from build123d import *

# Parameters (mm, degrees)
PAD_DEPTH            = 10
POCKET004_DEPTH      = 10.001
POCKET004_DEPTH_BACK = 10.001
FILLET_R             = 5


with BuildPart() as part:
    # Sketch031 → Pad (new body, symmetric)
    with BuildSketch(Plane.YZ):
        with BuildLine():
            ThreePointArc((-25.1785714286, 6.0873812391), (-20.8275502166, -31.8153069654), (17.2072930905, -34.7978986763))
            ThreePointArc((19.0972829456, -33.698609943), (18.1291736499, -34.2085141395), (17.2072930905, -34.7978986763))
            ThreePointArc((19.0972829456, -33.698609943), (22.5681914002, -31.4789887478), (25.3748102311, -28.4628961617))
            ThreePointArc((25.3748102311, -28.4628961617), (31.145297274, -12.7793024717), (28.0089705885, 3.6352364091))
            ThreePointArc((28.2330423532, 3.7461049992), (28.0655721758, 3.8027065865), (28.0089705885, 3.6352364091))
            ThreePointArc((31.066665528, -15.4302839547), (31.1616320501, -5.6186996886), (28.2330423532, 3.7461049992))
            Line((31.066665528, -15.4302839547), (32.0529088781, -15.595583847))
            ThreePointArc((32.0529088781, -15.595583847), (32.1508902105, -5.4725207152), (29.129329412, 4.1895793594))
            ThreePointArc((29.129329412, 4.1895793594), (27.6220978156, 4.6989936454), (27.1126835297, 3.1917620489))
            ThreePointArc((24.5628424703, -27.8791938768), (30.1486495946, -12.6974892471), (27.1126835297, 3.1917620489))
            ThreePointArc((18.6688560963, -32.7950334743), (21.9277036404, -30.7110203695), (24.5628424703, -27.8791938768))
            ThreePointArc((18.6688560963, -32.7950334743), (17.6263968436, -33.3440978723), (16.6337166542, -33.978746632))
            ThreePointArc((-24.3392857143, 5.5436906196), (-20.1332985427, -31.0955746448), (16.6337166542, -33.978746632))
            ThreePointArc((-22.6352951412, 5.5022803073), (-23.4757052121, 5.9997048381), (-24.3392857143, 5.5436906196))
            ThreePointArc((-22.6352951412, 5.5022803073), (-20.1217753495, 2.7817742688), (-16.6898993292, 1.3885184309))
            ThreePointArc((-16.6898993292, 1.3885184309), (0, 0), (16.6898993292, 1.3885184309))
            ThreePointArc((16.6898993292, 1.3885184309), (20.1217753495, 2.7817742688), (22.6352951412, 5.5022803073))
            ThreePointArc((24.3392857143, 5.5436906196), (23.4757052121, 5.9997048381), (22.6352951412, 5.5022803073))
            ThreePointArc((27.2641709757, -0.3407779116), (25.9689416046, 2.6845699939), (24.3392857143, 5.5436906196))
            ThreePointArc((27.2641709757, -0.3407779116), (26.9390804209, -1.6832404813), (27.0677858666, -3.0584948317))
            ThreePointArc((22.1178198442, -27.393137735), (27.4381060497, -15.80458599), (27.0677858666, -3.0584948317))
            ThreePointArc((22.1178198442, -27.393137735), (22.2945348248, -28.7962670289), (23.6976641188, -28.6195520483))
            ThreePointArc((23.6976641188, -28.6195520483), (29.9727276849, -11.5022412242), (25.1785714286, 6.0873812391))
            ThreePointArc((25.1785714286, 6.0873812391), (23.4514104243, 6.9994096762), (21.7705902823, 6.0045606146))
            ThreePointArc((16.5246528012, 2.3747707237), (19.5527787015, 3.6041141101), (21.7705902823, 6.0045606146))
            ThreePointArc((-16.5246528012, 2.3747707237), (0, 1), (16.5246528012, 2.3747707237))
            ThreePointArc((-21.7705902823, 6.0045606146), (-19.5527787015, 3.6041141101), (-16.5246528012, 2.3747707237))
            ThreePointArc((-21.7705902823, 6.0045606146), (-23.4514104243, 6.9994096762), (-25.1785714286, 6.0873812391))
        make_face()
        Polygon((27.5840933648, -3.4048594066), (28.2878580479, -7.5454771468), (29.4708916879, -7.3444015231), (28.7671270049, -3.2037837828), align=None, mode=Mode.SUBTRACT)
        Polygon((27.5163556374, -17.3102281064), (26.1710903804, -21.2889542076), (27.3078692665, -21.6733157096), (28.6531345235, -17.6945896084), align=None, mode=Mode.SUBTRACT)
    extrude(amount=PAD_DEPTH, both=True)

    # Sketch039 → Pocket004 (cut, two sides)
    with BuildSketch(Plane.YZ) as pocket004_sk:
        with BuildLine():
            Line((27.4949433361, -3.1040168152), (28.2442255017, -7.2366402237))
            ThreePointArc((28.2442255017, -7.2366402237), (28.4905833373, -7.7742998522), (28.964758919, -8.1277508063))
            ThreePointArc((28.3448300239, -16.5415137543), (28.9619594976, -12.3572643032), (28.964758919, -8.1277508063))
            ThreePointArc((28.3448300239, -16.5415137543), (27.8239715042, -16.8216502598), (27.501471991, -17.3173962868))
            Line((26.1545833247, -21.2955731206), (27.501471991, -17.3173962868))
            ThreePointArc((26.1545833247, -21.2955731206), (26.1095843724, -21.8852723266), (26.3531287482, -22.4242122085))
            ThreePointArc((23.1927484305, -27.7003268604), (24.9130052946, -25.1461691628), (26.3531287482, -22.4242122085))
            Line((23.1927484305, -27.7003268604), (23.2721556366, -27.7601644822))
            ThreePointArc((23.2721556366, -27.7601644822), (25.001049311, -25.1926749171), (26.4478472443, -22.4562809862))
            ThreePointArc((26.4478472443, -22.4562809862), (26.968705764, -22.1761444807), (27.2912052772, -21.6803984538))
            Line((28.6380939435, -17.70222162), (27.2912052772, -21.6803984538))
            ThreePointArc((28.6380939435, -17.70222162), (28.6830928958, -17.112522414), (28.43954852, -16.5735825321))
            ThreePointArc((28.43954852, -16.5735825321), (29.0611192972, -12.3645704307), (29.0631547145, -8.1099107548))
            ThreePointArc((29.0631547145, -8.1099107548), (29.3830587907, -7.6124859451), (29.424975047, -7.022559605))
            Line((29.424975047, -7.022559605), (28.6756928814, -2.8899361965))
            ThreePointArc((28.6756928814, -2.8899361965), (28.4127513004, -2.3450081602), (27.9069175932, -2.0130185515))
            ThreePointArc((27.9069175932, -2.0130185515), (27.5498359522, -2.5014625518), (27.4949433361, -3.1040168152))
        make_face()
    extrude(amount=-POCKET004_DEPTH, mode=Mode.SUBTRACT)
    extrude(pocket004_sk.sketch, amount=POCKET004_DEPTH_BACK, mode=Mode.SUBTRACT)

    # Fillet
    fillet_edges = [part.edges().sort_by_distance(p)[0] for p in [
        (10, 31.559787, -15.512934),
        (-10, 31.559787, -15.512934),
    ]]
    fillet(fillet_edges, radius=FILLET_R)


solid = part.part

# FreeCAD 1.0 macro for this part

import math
import FreeCAD as App
import Part
import Sketcher
Q = App.Units.Quantity


def edges_at(feature, points):
    """Names of the edges that pass closest to the given points."""
    edges = feature.Shape.Edges
    near = lambda p: min(range(len(edges)), key=lambda i: edges[i].distToShape(Part.Vertex(*p))[0])
    return sorted({f"Edge{near(p) + 1}" for p in points})


def add_polygon(sketch, points):
    """Adds a closed chain of lines whose ends are joined by coincident constraints."""
    first, n = sketch.GeometryCount, len(points)
    for a, b in zip(points, points[1:] + points[:1]):
        sketch.addGeometry(Part.LineSegment(App.Vector(*a, 0), App.Vector(*b, 0)), False)
    for i in range(n):
        sketch.addConstraint(Sketcher.Constraint("Coincident", first + i, 2, first + (i + 1) % n, 1))

doc = App.newDocument("Part")
body = doc.addObject("PartDesign::Body", "Body")

# Sketch on YZ plane
sketch1 = body.newObject("Sketcher::SketchObject", "Sketch")
sketch1.AttachmentSupport = (doc.getObject("YZ_Plane"), [""])
sketch1.MapMode = "FlatFace"
sketch1.addGeometry(Part.ArcOfCircle(Part.Circle(App.Vector(0, -10.223337, 0), App.Vector(0, 0, 1), 30), math.radians(147.06477), math.radians(305)), False)  # 0
sketch1.addGeometry(Part.ArcOfCircle(Part.Circle(App.Vector(24.67582, -45.464061, 0), App.Vector(0, 0, 1), 13.02098), math.radians(115.367765), math.radians(125)), False)  # 1
sketch1.addGeometry(Part.ArcOfCircle(Part.Circle(App.Vector(12.085573, -18.910516, 0), App.Vector(0, 0, 1), 16.366179), math.radians(-64.632235), math.radians(-35.708797)), False)  # 2
sketch1.addGeometry(Part.ArcOfCircle(Part.Circle(App.Vector(0, -10.223337, 0), App.Vector(0, 0, 1), 31.25), math.radians(-35.708797), math.radians(26.32577)), False)  # 3
sketch1.addGeometry(Part.ArcOfCircle(Part.Circle(App.Vector(28.121006, 3.690671, 0), App.Vector(0, 0, 1), 0.125), math.radians(26.32577), math.radians(206.32577)), False)  # 4
sketch1.addGeometry(Part.ArcOfCircle(Part.Circle(App.Vector(0, -10.223337, 0), App.Vector(0, 0, 1), 31.5), math.radians(-9.514656), math.radians(26.32577)), False)  # 5
sketch1.addGeometry(Part.LineSegment(App.Vector(31.066666, -15.430284, 0), App.Vector(32.052909, -15.595584, 0)), False)  # 6
sketch1.addGeometry(Part.ArcOfCircle(Part.Circle(App.Vector(0, -10.223337, 0), App.Vector(0, 0, 1), 32.5), math.radians(-9.514656), math.radians(26.32577)), False)  # 7
sketch1.addGeometry(Part.ArcOfCircle(Part.Circle(App.Vector(28.121006, 3.690671, 0), App.Vector(0, 0, 1), 1.125), math.radians(26.32577), math.radians(206.32577)), False)  # 8
sketch1.addGeometry(Part.ArcOfCircle(Part.Circle(App.Vector(0, -10.223337, 0), App.Vector(0, 0, 1), 30.25), math.radians(-35.708712), math.radians(26.32577)), False)  # 9
sketch1.addGeometry(Part.ArcOfCircle(Part.Circle(App.Vector(12.085573, -18.910516, 0), App.Vector(0, 0, 1), 15.366179), math.radians(-64.632235), math.radians(-35.708629)), False)  # 10
sketch1.addGeometry(Part.ArcOfCircle(Part.Circle(App.Vector(24.67582, -45.464061, 0), App.Vector(0, 0, 1), 14.02098), math.radians(115.367765), math.radians(125)), False)  # 11
sketch1.addGeometry(Part.ArcOfCircle(Part.Circle(App.Vector(0, -10.223337, 0), App.Vector(0, 0, 1), 29), math.radians(147.06477), math.radians(305)), False)  # 12
sketch1.addGeometry(Part.ArcOfCircle(Part.Circle(App.Vector(-23.5, 5, 0), App.Vector(0, 0, 1), 1), math.radians(30.150979), math.radians(147.064769)), False)  # 13
sketch1.addGeometry(Part.ArcOfCircle(Part.Circle(App.Vector(-15.285304, 9.771663, 0), App.Vector(0, 0, 1), 8.5), math.radians(-149.849021), math.radians(-99.511556)), False)  # 14
sketch1.addGeometry(Part.ArcOfCircle(Part.Circle(App.Vector(0, 101, 0), App.Vector(0, 0, 1), 101), math.radians(-99.511556), math.radians(-80.488444)), False)  # 15
sketch1.addGeometry(Part.ArcOfCircle(Part.Circle(App.Vector(15.285304, 9.771663, 0), App.Vector(0, 0, 1), 8.5), math.radians(-80.488444), math.radians(-30.150979)), False)  # 16
sketch1.addGeometry(Part.ArcOfCircle(Part.Circle(App.Vector(23.5, 5, 0), App.Vector(0, 0, 1), 1), math.radians(32.935231), math.radians(149.849021)), False)  # 17
sketch1.addGeometry(Part.ArcOfCircle(Part.Circle(App.Vector(0, -10.223337, 0), App.Vector(0, 0, 1), 29), math.radians(19.924276), math.radians(32.93523)), False)  # 18
sketch1.addGeometry(Part.ArcOfCircle(Part.Circle(App.Vector(31.12153, -1.985469, 0), App.Vector(0, 0, 1), 4.193355), math.radians(156.907696), math.radians(194.826164)), False)  # 19
sketch1.addGeometry(Part.ArcOfCircle(Part.Circle(App.Vector(0, -10.223337, 0), App.Vector(0, 0, 1), 28), math.radians(-37.821764), math.radians(14.826164)), False)  # 20
sketch1.addGeometry(Part.ArcOfCircle(Part.Circle(App.Vector(22.907742, -28.006345, 0), App.Vector(0, 0, 1), 1), math.radians(142.178236), math.radians(322.178236)), False)  # 21
sketch1.addGeometry(Part.ArcOfCircle(Part.Circle(App.Vector(0, -10.223337, 0), App.Vector(0, 0, 1), 30), math.radians(-37.821764), math.radians(32.93523)), False)  # 22
sketch1.addGeometry(Part.ArcOfCircle(Part.Circle(App.Vector(23.5, 5, 0), App.Vector(0, 0, 1), 2), math.radians(32.93523), math.radians(149.849021)), False)  # 23
sketch1.addGeometry(Part.ArcOfCircle(Part.Circle(App.Vector(15.285304, 9.771663, 0), App.Vector(0, 0, 1), 7.5), math.radians(-80.488444), math.radians(-30.150979)), False)  # 24
sketch1.addGeometry(Part.ArcOfCircle(Part.Circle(App.Vector(0, 101, 0), App.Vector(0, 0, 1), 100), math.radians(-99.511556), math.radians(-80.488444)), False)  # 25
sketch1.addGeometry(Part.ArcOfCircle(Part.Circle(App.Vector(-15.285304, 9.771663, 0), App.Vector(0, 0, 1), 7.5), math.radians(-149.849021), math.radians(-99.511556)), False)  # 26
sketch1.addGeometry(Part.ArcOfCircle(Part.Circle(App.Vector(-23.5, 5, 0), App.Vector(0, 0, 1), 2), math.radians(30.150979), math.radians(147.06477)), False)  # 27
add_polygon(sketch1, [(26.17109, -21.288954), (27.516356, -17.310228), (28.653135, -17.69459), (27.307869, -21.673316)])  # lines 28-31
add_polygon(sketch1, [(28.287858, -7.545477), (27.584093, -3.404859), (28.767127, -3.203784), (29.470892, -7.344402)])  # lines 32-35
sketch1.addConstraint([
    Sketcher.Constraint("Coincident", 0, 2, 1, 2),
    Sketcher.Constraint("Coincident", 1, 1, 2, 1),
    Sketcher.Constraint("Coincident", 2, 2, 3, 1),
    Sketcher.Constraint("Coincident", 3, 2, 4, 2),
    Sketcher.Constraint("Coincident", 4, 1, 5, 2),
    Sketcher.Constraint("Coincident", 5, 1, 6, 1),
    Sketcher.Constraint("Coincident", 6, 2, 7, 1),
    Sketcher.Constraint("Coincident", 7, 2, 8, 1),
    Sketcher.Constraint("Coincident", 8, 2, 9, 2),
    Sketcher.Constraint("Coincident", 9, 1, 10, 2),
    Sketcher.Constraint("Coincident", 10, 1, 11, 1),
    Sketcher.Constraint("Coincident", 11, 2, 12, 2),
    Sketcher.Constraint("Coincident", 12, 1, 13, 2),
    Sketcher.Constraint("Coincident", 13, 1, 14, 1),
    Sketcher.Constraint("Coincident", 14, 2, 15, 1),
    Sketcher.Constraint("Coincident", 15, 2, 16, 1),
    Sketcher.Constraint("Coincident", 16, 2, 17, 2),
    Sketcher.Constraint("Coincident", 17, 1, 18, 2),
    Sketcher.Constraint("Coincident", 18, 1, 19, 1),
    Sketcher.Constraint("Coincident", 19, 2, 20, 2),
    Sketcher.Constraint("Coincident", 20, 1, 21, 1),
    Sketcher.Constraint("Coincident", 21, 2, 22, 1),
    Sketcher.Constraint("Coincident", 22, 2, 23, 1),
    Sketcher.Constraint("Coincident", 23, 2, 24, 2),
    Sketcher.Constraint("Coincident", 24, 1, 25, 2),
    Sketcher.Constraint("Coincident", 25, 1, 26, 2),
    Sketcher.Constraint("Coincident", 26, 1, 27, 1),
    Sketcher.Constraint("Coincident", 27, 2, 0, 1),
    Sketcher.Constraint("Coincident", 3, 3, 0, 3),
    Sketcher.Constraint("Coincident", 5, 3, 0, 3),
    Sketcher.Constraint("Coincident", 7, 3, 0, 3),
    Sketcher.Constraint("Coincident", 8, 3, 4, 3),
    Sketcher.Constraint("Coincident", 9, 3, 0, 3),
    Sketcher.Constraint("Coincident", 10, 3, 2, 3),
    Sketcher.Constraint("Coincident", 11, 3, 1, 3),
    Sketcher.Constraint("Coincident", 12, 3, 0, 3),
    Sketcher.Constraint("Coincident", 18, 3, 0, 3),
    Sketcher.Constraint("Coincident", 20, 3, 0, 3),
    Sketcher.Constraint("Coincident", 22, 3, 0, 3),
    Sketcher.Constraint("Coincident", 23, 3, 17, 3),
    Sketcher.Constraint("Coincident", 24, 3, 16, 3),
    Sketcher.Constraint("Coincident", 25, 3, 15, 3),
    Sketcher.Constraint("Coincident", 26, 3, 14, 3),
    Sketcher.Constraint("Coincident", 27, 3, 13, 3),
    Sketcher.Constraint("PointOnObject", 0, 3, -2),
    Sketcher.Constraint("PointOnObject", 15, 3, -2),
    Sketcher.Constraint("Radius", 0, 30.0),
    Sketcher.Constraint("Radius", 12, 29.0),
    Sketcher.Constraint("Radius", 13, 1.0),
    Sketcher.Constraint("Radius", 15, 101.0),
    Sketcher.Constraint("Radius", 17, 1.0),
    Sketcher.Constraint("Radius", 18, 29.0),
    Sketcher.Constraint("Radius", 20, 28.0),
    Sketcher.Constraint("Radius", 5, 31.5),
    Sketcher.Constraint("Radius", 14, 8.5),
    Sketcher.Constraint("Radius", 16, 8.5),
    Sketcher.Constraint("Radius", 3, 31.25),
    Sketcher.Constraint("DistanceY", -1, 1, 13, 3, 5.0),
    Sketcher.Constraint("DistanceY", -1, 1, 15, 3, 101.0),
    Sketcher.Constraint("DistanceY", -1, 1, 17, 3, 5.0),
    Sketcher.Constraint("Distance", 28, 4.2),
    Sketcher.Constraint("Distance", 29, 1.2),
    Sketcher.Constraint("Distance", 30, 4.2),
    Sketcher.Constraint("Distance", 31, 1.2),
    Sketcher.Constraint("Distance", 32, 4.2),
    Sketcher.Constraint("Distance", 33, 1.2),
    Sketcher.Constraint("Distance", 34, 4.2),
    Sketcher.Constraint("Distance", 35, 1.2),
    Sketcher.Constraint("DistanceX", 13, 3, -1, 1, 23.5),
    Sketcher.Constraint("Radius", 1, 13.02098),
    Sketcher.Constraint("Radius", 2, 16.366179),
    Sketcher.Constraint("Radius", 19, 4.193355),
    Sketcher.Constraint("DistanceY", 0, 2, -1, 1, 34.797899),
    Sketcher.Constraint("DistanceX", 14, 2, -1, 1, 16.689899),
    Sketcher.Constraint("DistanceX", -1, 1, 15, 2, 16.689899),
    Sketcher.Constraint("DistanceY", 34, 2, -1, 1, 7.344402),
    Sketcher.Constraint("DistanceX", -1, 1, 1, 3, 24.67582),
    Sketcher.Constraint("DistanceY", -1, 1, 4, 3, 3.690671),
    Sketcher.Constraint("DistanceX", -1, 1, 19, 3, 31.12153),
    Sketcher.Constraint("DistanceX", -1, 1, 21, 3, 22.907742),
    Sketcher.Constraint("DistanceY", 1, 1, -1, 1, 33.69861),
    Sketcher.Constraint("DistanceX", -1, 1, 2, 2, 25.37481),
    Sketcher.Constraint("DistanceX", -1, 1, 3, 2, 28.008971),
    Sketcher.Constraint("DistanceX", -1, 1, 6, 2, 32.052909),
    Sketcher.Constraint("DistanceX", -1, 1, 7, 2, 29.129329),
    Sketcher.Constraint("DistanceY", -1, 1, 12, 1, 5.543691),
    Sketcher.Constraint("DistanceY", -1, 1, 13, 1, 5.50228),
    Sketcher.Constraint("DistanceY", -1, 1, 16, 2, 5.50228),
    Sketcher.Constraint("DistanceY", -1, 1, 17, 1, 5.543691),
    Sketcher.Constraint("DistanceX", -1, 1, 20, 1, 22.11782),
    Sketcher.Constraint("DistanceX", -1, 1, 22, 2, 25.178571),
    Sketcher.Constraint("DistanceX", -1, 1, 23, 2, 21.77059),
    Sketcher.Constraint("DistanceY", -1, 1, 24, 1, 2.374771),
    Sketcher.Constraint("DistanceY", -1, 1, 25, 1, 2.374771),
    Sketcher.Constraint("DistanceX", 26, 1, -1, 1, 21.77059),
    Sketcher.Constraint("DistanceX", 27, 2, -1, 1, 25.178571),
    Sketcher.Constraint("DistanceY", 28, 2, -1, 1, 17.310228),
    Sketcher.Constraint("DistanceY", 29, 2, -1, 1, 17.69459),
    Sketcher.Constraint("DistanceX", -1, 1, 30, 2, 27.307869),
    Sketcher.Constraint("DistanceY", 32, 2, -1, 1, 3.404859),
    Sketcher.Constraint("DistanceX", -1, 1, 34, 2, 29.470892),
    Sketcher.Constraint("DistanceX", -1, 1, 35, 2, 28.287858),
    Sketcher.Constraint("DistanceX", -1, 1, 4, 1, 28.233042),
    Sketcher.Constraint("DistanceX", -1, 1, 5, 1, 31.066666),
    Sketcher.Constraint("DistanceX", -1, 1, 8, 2, 27.112684),
    Sketcher.Constraint("DistanceX", -1, 1, 9, 1, 24.562842),
    Sketcher.Constraint("DistanceX", -1, 1, 10, 1, 18.668856),
    Sketcher.Constraint("DistanceX", -1, 1, 11, 2, 16.633717),
    Sketcher.Constraint("DistanceX", -1, 1, 19, 2, 27.067786),
    Sketcher.Constraint("DistanceX", -1, 1, 21, 2, 23.697664),
    Sketcher.Constraint("DistanceX", -1, 1, 28, 2, 27.516356),
])
pad1 = body.newObject("PartDesign::Pad", "Pad")
pad1.Profile = sketch1
pad1.Length = 20
pad1.Midplane = True

# Sketch on YZ plane
sketch2 = body.newObject("Sketcher::SketchObject", "Sketch001")
sketch2.AttachmentSupport = (doc.getObject("YZ_Plane"), [""])
sketch2.MapMode = "FlatFace"
sketch2.addGeometry([
    Part.LineSegment(App.Vector(27.49, -3.1, 0), App.Vector(28.24, -7.24, 0)),  # 0
    Part.ArcOfCircle(Part.Circle(App.Vector(29.42, -7.02, 0), App.Vector(0, 0, 1), 1.19), math.radians(-170), math.radians(-112)),  # 1
    Part.ArcOfCircle(Part.Circle(App.Vector(0, -10.22, 0), App.Vector(0, 0, 1), 29.04), math.radians(-12.57), math.radians(4.14)),  # 2
    Part.ArcOfCircle(Part.Circle(App.Vector(28.63, -17.7, 0), App.Vector(0, 0, 1), 1.19), math.radians(104), math.radians(161)),  # 3
    Part.LineSegment(App.Vector(27.5, -17.32, 0), App.Vector(26.15, -21.3, 0)),  # 4
    Part.ArcOfCircle(Part.Circle(App.Vector(27.29, -21.68, 0), App.Vector(0, 0, 1), 1.19), math.radians(161), math.radians(219)),  # 5
    Part.ArcOfCircle(Part.Circle(App.Vector(0, -10.22, 0), App.Vector(0, 0, 1), 29.04), math.radians(-37), math.radians(-24.84)),  # 6
    Part.LineSegment(App.Vector(23.19, -27.7, 0), App.Vector(23.27, -27.76, 0)),  # 7
    Part.ArcOfCircle(Part.Circle(App.Vector(0, -10.22, 0), App.Vector(0, 0, 1), 29.14), math.radians(-37), math.radians(-24.82)),  # 8
    Part.ArcOfCircle(Part.Circle(App.Vector(26.16, -21.3, 0), App.Vector(0, 0, 1), 1.19), math.radians(-76), math.radians(-19)),  # 9
    Part.LineSegment(App.Vector(27.29, -21.68, 0), App.Vector(28.64, -17.7, 0)),  # 10
    Part.ArcOfCircle(Part.Circle(App.Vector(27.51, -17.32, 0), App.Vector(0, 0, 1), 1.19), math.radians(-19), math.radians(39)),  # 11
    Part.ArcOfCircle(Part.Circle(App.Vector(0, -10.22, 0), App.Vector(0, 0, 1), 29.14), math.radians(-12.59), math.radians(4.16)),  # 12
    Part.ArcOfCircle(Part.Circle(App.Vector(28.25, -7.24, 0), App.Vector(0, 0, 1), 1.19), math.radians(-47), math.radians(10)),  # 13
    Part.LineSegment(App.Vector(29.42, -7.02, 0), App.Vector(28.68, -2.89, 0)),  # 14
    Part.ArcOfCircle(Part.Circle(App.Vector(27.56, -3.09, 0), App.Vector(0, 0, 1), 1.13), math.radians(10), math.radians(72)),  # 15
    Part.ArcOfCircle(Part.Circle(App.Vector(28.61, -2.9, 0), App.Vector(0, 0, 1), 1.13), math.radians(128), math.radians(190)),  # 16
], False)
sketch2.addConstraint([
    Sketcher.Constraint("Tangent", 0, 2, 1, 1),
    Sketcher.Constraint("Coincident", 1, 2, 2, 2),
    Sketcher.Constraint("Coincident", 2, 1, 3, 1),
    Sketcher.Constraint("Tangent", 3, 2, 4, 1),
    Sketcher.Constraint("Tangent", 4, 2, 5, 1),
    Sketcher.Constraint("Coincident", 5, 2, 6, 2),
    Sketcher.Constraint("Coincident", 6, 1, 7, 1),
    Sketcher.Constraint("Coincident", 7, 2, 8, 1),
    Sketcher.Constraint("Coincident", 8, 2, 9, 1),
    Sketcher.Constraint("Tangent", 9, 2, 10, 1),
    Sketcher.Constraint("Tangent", 10, 2, 11, 1),
    Sketcher.Constraint("Coincident", 11, 2, 12, 1),
    Sketcher.Constraint("Coincident", 12, 2, 13, 1),
    Sketcher.Constraint("Tangent", 13, 2, 14, 1),
    Sketcher.Constraint("Tangent", 14, 2, 15, 1),
    Sketcher.Constraint("Coincident", 15, 2, 16, 1),
    Sketcher.Constraint("Tangent", 16, 2, 0, 1),
    Sketcher.Constraint("Coincident", 6, 3, 2, 3),
    Sketcher.Constraint("Coincident", 8, 3, 2, 3),
    Sketcher.Constraint("Coincident", 12, 3, 2, 3),
    Sketcher.Constraint("Equal", 1, 3),
    Sketcher.Constraint("Equal", 3, 5),
    Sketcher.Constraint("Equal", 2, 6),
    Sketcher.Constraint("Equal", 5, 9),
    Sketcher.Constraint("Equal", 9, 11),
    Sketcher.Constraint("Equal", 8, 12),
    Sketcher.Constraint("Equal", 11, 13),
    Sketcher.Constraint("Equal", 15, 16),
    Sketcher.Constraint("PointOnObject", 2, 3, -2),
    Sketcher.Constraint("Parallel", 4, 10),
    Sketcher.Constraint("Parallel", 0, 14),
    Sketcher.Constraint("Equal", 0, 4),
    Sketcher.Constraint("Equal", 4, 10),
    Sketcher.Constraint("Equal", 10, 14),
    Sketcher.Constraint("Angle", 7, Q("-37 deg")),
    Sketcher.Constraint("Distance", 0, 4.2),
    Sketcher.Constraint("Radius", 1, 1.19386),
    Sketcher.Constraint("Radius", 2, 29.040467),
    Sketcher.Constraint("Radius", 8, 29.139896),
    Sketcher.Constraint("Radius", 15, 1.133333),
    Sketcher.Constraint("DistanceY", 16, 2, 15, 2, 1.090998),
    Sketcher.Constraint("DistanceX", -1, 1, 9, 3, 26.160399),
    Sketcher.Constraint("DistanceY", 9, 2, -1, 1, 21.680398),
    Sketcher.Constraint("DistanceX", -1, 1, 3, 3, 28.632279),
    Sketcher.Constraint("DistanceX", -1, 1, 5, 3, 27.28539),
    Sketcher.Constraint("DistanceY", 5, 3, -1, 1, 21.67843),
    Sketcher.Constraint("DistanceX", -1, 1, 15, 3, 27.560541),
    Sketcher.Constraint("DistanceY", 16, 3, -1, 1, 2.90183),
    Sketcher.Constraint("DistanceY", 0, 2, -1, 1, 7.23664),
    Sketcher.Constraint("DistanceX", -1, 1, 1, 2, 28.964759),
    Sketcher.Constraint("DistanceY", 1, 2, -1, 1, 8.127751),
    Sketcher.Constraint("DistanceX", -1, 1, 6, 1, 23.192748),
])
pocket1 = body.newObject("PartDesign::Pocket", "Pocket")
pocket1.Profile = sketch2
pocket1.Type = "ThroughAll"
pocket1.Midplane = True
doc.recompute()

fillet = body.newObject("PartDesign::Fillet", "Fillet")
fillet.Base = (pocket1, edges_at(pocket1, [(10, 31.56, -15.513), (-10, 31.56, -15.513)]))
fillet.Radius = 5

doc.recompute()
